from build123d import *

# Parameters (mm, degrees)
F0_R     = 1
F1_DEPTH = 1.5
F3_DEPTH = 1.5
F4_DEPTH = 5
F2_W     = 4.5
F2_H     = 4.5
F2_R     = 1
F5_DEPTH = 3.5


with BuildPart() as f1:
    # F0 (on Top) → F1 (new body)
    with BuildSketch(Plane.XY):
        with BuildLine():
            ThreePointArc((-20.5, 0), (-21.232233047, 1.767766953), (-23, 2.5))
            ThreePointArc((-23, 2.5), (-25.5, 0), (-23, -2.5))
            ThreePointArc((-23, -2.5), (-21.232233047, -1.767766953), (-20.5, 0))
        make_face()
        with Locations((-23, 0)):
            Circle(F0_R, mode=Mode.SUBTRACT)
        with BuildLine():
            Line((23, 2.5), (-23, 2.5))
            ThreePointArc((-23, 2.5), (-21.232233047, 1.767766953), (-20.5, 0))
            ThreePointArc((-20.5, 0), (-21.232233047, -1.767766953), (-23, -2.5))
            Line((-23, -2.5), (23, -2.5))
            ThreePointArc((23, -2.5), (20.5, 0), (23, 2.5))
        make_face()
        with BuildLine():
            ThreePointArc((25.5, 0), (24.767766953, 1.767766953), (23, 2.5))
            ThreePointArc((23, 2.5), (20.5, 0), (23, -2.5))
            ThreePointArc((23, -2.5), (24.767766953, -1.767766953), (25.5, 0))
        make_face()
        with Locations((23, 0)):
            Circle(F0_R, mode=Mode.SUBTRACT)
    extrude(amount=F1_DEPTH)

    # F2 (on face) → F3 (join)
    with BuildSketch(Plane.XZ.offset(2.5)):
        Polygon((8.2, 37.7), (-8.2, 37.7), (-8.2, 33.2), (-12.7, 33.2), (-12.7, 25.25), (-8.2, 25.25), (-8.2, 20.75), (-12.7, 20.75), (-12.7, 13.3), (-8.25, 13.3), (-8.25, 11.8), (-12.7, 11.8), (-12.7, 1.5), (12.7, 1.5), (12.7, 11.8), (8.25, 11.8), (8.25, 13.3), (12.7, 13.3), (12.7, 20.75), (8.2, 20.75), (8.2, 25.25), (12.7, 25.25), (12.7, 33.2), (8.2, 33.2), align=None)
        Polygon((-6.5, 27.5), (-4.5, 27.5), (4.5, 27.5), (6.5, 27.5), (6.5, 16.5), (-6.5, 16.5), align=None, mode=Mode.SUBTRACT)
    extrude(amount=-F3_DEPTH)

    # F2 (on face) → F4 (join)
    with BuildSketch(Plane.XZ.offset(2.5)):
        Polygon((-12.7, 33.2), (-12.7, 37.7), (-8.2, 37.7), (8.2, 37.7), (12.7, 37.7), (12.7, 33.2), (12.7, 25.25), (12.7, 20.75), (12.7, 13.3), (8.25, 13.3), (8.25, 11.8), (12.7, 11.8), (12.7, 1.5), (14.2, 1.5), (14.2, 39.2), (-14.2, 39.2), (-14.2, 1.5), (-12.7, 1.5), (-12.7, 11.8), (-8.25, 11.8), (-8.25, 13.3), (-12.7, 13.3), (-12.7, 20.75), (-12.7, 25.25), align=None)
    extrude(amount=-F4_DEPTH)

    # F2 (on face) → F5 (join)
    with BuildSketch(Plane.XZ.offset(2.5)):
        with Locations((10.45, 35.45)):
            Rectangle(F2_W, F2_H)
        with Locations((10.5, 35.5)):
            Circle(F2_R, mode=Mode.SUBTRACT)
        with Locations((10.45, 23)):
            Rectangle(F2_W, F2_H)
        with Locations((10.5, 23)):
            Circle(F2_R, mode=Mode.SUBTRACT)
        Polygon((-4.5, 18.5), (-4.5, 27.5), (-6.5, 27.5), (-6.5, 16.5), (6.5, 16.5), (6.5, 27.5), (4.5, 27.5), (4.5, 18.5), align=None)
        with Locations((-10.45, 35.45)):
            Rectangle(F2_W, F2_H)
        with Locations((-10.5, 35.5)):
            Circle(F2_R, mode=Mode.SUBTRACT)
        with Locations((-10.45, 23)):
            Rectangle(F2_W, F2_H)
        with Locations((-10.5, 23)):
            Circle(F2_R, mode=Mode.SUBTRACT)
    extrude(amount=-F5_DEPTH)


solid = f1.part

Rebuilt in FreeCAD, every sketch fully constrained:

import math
import FreeCAD as App
import Part
import Sketcher
from FreeCAD import Vector
Q = App.Units.Quantity

doc = App.newDocument("Part")
body = doc.addObject("PartDesign::Body", "Body")

sketch1 = body.newObject("Sketcher::SketchObject", "Sketch")
sketch1.AttachmentSupport = (doc.getObject("XY_Plane"), [""])
sketch1.MapMode = "FlatFace"
sketch1.addGeometry(Part.ArcOfCircle(Part.Circle(Vector(-23, 0, 0), Vector(0, 0, 1), 2.5), math.radians(90), math.radians(270)), False)
sketch1.addGeometry(Part.LineSegment(Vector(-23, -2.5, 0), Vector(23, -2.5, 0)), False)
sketch1.addGeometry(Part.ArcOfCircle(Part.Circle(Vector(23, 0, 0), Vector(0, 0, 1), 2.5), math.radians(-90), math.radians(0)), False)
sketch1.addGeometry(Part.ArcOfCircle(Part.Circle(Vector(23, 0, 0), Vector(0, 0, 1), 2.5), math.radians(0), math.radians(90)), False)
sketch1.addGeometry(Part.LineSegment(Vector(23, 2.5, 0), Vector(-23, 2.5, 0)), False)
sketch1.addGeometry(Part.Circle(Vector(-23, 0, 0), Vector(0, 0, 1), 1), False)
sketch1.addGeometry(Part.Circle(Vector(23, 0, 0), Vector(0, 0, 1), 1), False)
sketch1.addConstraint(Sketcher.Constraint("Tangent", 0, 2, 1, 1))
sketch1.addConstraint(Sketcher.Constraint("Tangent", 1, 2, 2, 1))
sketch1.addConstraint(Sketcher.Constraint("Tangent", 2, 2, 3, 1))
sketch1.addConstraint(Sketcher.Constraint("Tangent", 3, 2, 4, 1))
sketch1.addConstraint(Sketcher.Constraint("Tangent", 4, 2, 0, 1))
sketch1.addConstraint(Sketcher.Constraint("Horizontal", 1))
sketch1.addConstraint(Sketcher.Constraint("Horizontal", 4))
sketch1.addConstraint(Sketcher.Constraint("Coincident", 5, 3, 0, 3))
sketch1.addConstraint(Sketcher.Constraint("Coincident", 6, 3, 2, 3))
sketch1.addConstraint(Sketcher.Constraint("Equal", 0, 2))
sketch1.addConstraint(Sketcher.Constraint("Equal", 5, 6))
sketch1.addConstraint(Sketcher.Constraint("Symmetric", 0, 3, 2, 3, -1, 1))
sketch1.addConstraint(Sketcher.Constraint("PointOnObject", 2, 2, -1))
sketch1.addConstraint(Sketcher.Constraint("Diameter", 5, Q("2 mm")))
sketch1.addConstraint(Sketcher.Constraint("Radius", 0, Q("2.5 mm")))
sketch1.addConstraint(Sketcher.Constraint("DistanceX", 1, 1, 1, 2, Q("46 mm")))
pad1 = body.newObject("PartDesign::Pad", "Pad")
pad1.Profile = sketch1
pad1.Length = 1.5

sketch2 = body.newObject("Sketcher::SketchObject", "Sketch001")
sketch2.AttachmentSupport = (doc.getObject("XZ_Plane"), [""])
sketch2.MapMode = "FlatFace"
sketch2.AttachmentOffset = App.Placement(Vector(0, 0, 2.5), App.Rotation())
sketch2.addGeometry(Part.LineSegment(Vector(8.2, 37.7, 0), Vector(-8.2, 37.7, 0)), False)
sketch2.addGeometry(Part.LineSegment(Vector(-8.2, 37.7, 0), Vector(-8.2, 33.2, 0)), False)
sketch2.addGeometry(Part.LineSegment(Vector(-8.2, 33.2, 0), Vector(-12.7, 33.2, 0)), False)
sketch2.addGeometry(Part.LineSegment(Vector(-12.7, 33.2, 0), Vector(-12.7, 25.2, 0)), False)
sketch2.addGeometry(Part.LineSegment(Vector(-12.7, 25.2, 0), Vector(-8.2, 25.2, 0)), False)
sketch2.addGeometry(Part.LineSegment(Vector(-8.2, 25.2, 0), Vector(-8.2, 20.8, 0)), False)
sketch2.addGeometry(Part.LineSegment(Vector(-8.2, 20.8, 0), Vector(-12.7, 20.8, 0)), False)
sketch2.addGeometry(Part.LineSegment(Vector(-12.7, 20.8, 0), Vector(-12.7, 13.3, 0)), False)
sketch2.addGeometry(Part.LineSegment(Vector(-12.7, 13.3, 0), Vector(-8.2, 13.3, 0)), False)
sketch2.addGeometry(Part.LineSegment(Vector(-8.2, 13.3, 0), Vector(-8.2, 11.8, 0)), False)
sketch2.addGeometry(Part.LineSegment(Vector(-8.2, 11.8, 0), Vector(-12.7, 11.8, 0)), False)
sketch2.addGeometry(Part.LineSegment(Vector(-12.7, 11.8, 0), Vector(-12.7, 1.5, 0)), False)
sketch2.addGeometry(Part.LineSegment(Vector(-12.7, 1.5, 0), Vector(12.7, 1.5, 0)), False)
sketch2.addGeometry(Part.LineSegment(Vector(12.7, 1.5, 0), Vector(12.7, 11.8, 0)), False)
sketch2.addGeometry(Part.LineSegment(Vector(12.7, 11.8, 0), Vector(8.2, 11.8, 0)), False)
sketch2.addGeometry(Part.LineSegment(Vector(8.2, 11.8, 0), Vector(8.2, 13.3, 0)), False)
sketch2.addGeometry(Part.LineSegment(Vector(8.2, 13.3, 0), Vector(12.7, 13.3, 0)), False)
sketch2.addGeometry(Part.LineSegment(Vector(12.7, 13.3, 0), Vector(12.7, 20.8, 0)), False)
sketch2.addGeometry(Part.LineSegment(Vector(12.7, 20.8, 0), Vector(8.2, 20.8, 0)), False)
sketch2.addGeometry(Part.LineSegment(Vector(8.2, 20.8, 0), Vector(8.2, 25.2, 0)), False)
sketch2.addGeometry(Part.LineSegment(Vector(8.2, 25.2, 0), Vector(12.7, 25.2, 0)), False)
sketch2.addGeometry(Part.LineSegment(Vector(12.7, 25.2, 0), Vector(12.7, 33.2, 0)), False)
sketch2.addGeometry(Part.LineSegment(Vector(12.7, 33.2, 0), Vector(8.2, 33.2, 0)), False)
sketch2.addGeometry(Part.LineSegment(Vector(8.2, 33.2, 0), Vector(8.2, 37.7, 0)), False)
sketch2.addGeometry(Part.LineSegment(Vector(-6.5, 16.5, 0), Vector(-6.5, 27.5, 0)), False)
sketch2.addGeometry(Part.LineSegment(Vector(-6.5, 27.5, 0), Vector(6.5, 27.5, 0)), False)
sketch2.addGeometry(Part.LineSegment(Vector(6.5, 27.5, 0), Vector(6.5, 16.5, 0)), False)
sketch2.addGeometry(Part.LineSegment(Vector(6.5, 16.5, 0), Vector(-6.5, 16.5, 0)), False)
sketch2.addConstraint(Sketcher.Constraint("Coincident", 0, 2, 1, 1))
sketch2.addConstraint(Sketcher.Constraint("Coincident", 1, 2, 2, 1))
sketch2.addConstraint(Sketcher.Constraint("Coincident", 2, 2, 3, 1))
sketch2.addConstraint(Sketcher.Constraint("Coincident", 3, 2, 4, 1))
sketch2.addConstraint(Sketcher.Constraint("Coincident", 4, 2, 5, 1))
sketch2.addConstraint(Sketcher.Constraint("Coincident", 5, 2, 6, 1))
sketch2.addConstraint(Sketcher.Constraint("Coincident", 6, 2, 7, 1))
sketch2.addConstraint(Sketcher.Constraint("Coincident", 7, 2, 8, 1))
sketch2.addConstraint(Sketcher.Constraint("Coincident", 8, 2, 9, 1))
sketch2.addConstraint(Sketcher.Constraint("Coincident", 9, 2, 10, 1))
sketch2.addConstraint(Sketcher.Constraint("Coincident", 10, 2, 11, 1))
sketch2.addConstraint(Sketcher.Constraint("Coincident", 11, 2, 12, 1))
sketch2.addConstraint(Sketcher.Constraint("Coincident", 12, 2, 13, 1))
sketch2.addConstraint(Sketcher.Constraint("Coincident", 13, 2, 14, 1))
sketch2.addConstraint(Sketcher.Constraint("Coincident", 14, 2, 15, 1))
sketch2.addConstraint(Sketcher.Constraint("Coincident", 15, 2, 16, 1))
sketch2.addConstraint(Sketcher.Constraint("Coincident", 16, 2, 17, 1))
sketch2.addConstraint(Sketcher.Constraint("Coincident", 17, 2, 18, 1))
sketch2.addConstraint(Sketcher.Constraint("Coincident", 18, 2, 19, 1))
sketch2.addConstraint(Sketcher.Constraint("Coincident", 19, 2, 20, 1))
sketch2.addConstraint(Sketcher.Constraint("Coincident", 20, 2, 21, 1))
sketch2.addConstraint(Sketcher.Constraint("Coincident", 21, 2, 22, 1))
sketch2.addConstraint(Sketcher.Constraint("Coincident", 22, 2, 23, 1))
sketch2.addConstraint(Sketcher.Constraint("Coincident", 23, 2, 0, 1))
sketch2.addConstraint(Sketcher.Constraint("Coincident", 24, 2, 25, 1))
sketch2.addConstraint(Sketcher.Constraint("Coincident", 25, 2, 26, 1))
sketch2.addConstraint(Sketcher.Constraint("Coincident", 26, 2, 27, 1))
sketch2.addConstraint(Sketcher.Constraint("Coincident", 27, 2, 24, 1))
sketch2.addConstraint(Sketcher.Constraint("Horizontal", 0))
sketch2.addConstraint(Sketcher.Constraint("Vertical", 1))
sketch2.addConstraint(Sketcher.Constraint("Horizontal", 2))
sketch2.addConstraint(Sketcher.Constraint("Vertical", 3))
sketch2.addConstraint(Sketcher.Constraint("Horizontal", 4))
sketch2.addConstraint(Sketcher.Constraint("Vertical", 5))
sketch2.addConstraint(Sketcher.Constraint("Horizontal", 6))
sketch2.addConstraint(Sketcher.Constraint("Vertical", 7))
sketch2.addConstraint(Sketcher.Constraint("Horizontal", 8))
sketch2.addConstraint(Sketcher.Constraint("Vertical", 9))
sketch2.addConstraint(Sketcher.Constraint("Horizontal", 10))
sketch2.addConstraint(Sketcher.Constraint("Vertical", 11))
sketch2.addConstraint(Sketcher.Constraint("Horizontal", 12))
sketch2.addConstraint(Sketcher.Constraint("Vertical", 13))
sketch2.addConstraint(Sketcher.Constraint("Horizontal", 14))
sketch2.addConstraint(Sketcher.Constraint("Vertical", 15))
sketch2.addConstraint(Sketcher.Constraint("Horizontal", 16))
sketch2.addConstraint(Sketcher.Constraint("Vertical", 17))
sketch2.addConstraint(Sketcher.Constraint("Horizontal", 18))
sketch2.addConstraint(Sketcher.Constraint("Vertical", 19))
sketch2.addConstraint(Sketcher.Constraint("Horizontal", 20))
sketch2.addConstraint(Sketcher.Constraint("Vertical", 21))
sketch2.addConstraint(Sketcher.Constraint("Horizontal", 22))
sketch2.addConstraint(Sketcher.Constraint("Vertical", 23))
sketch2.addConstraint(Sketcher.Constraint("Vertical", 24))
sketch2.addConstraint(Sketcher.Constraint("Horizontal", 25))
sketch2.addConstraint(Sketcher.Constraint("Vertical", 26))
sketch2.addConstraint(Sketcher.Constraint("Horizontal", 27))
sketch2.addConstraint(Sketcher.Constraint("Symmetric", 10, 2, 13, 2, -2))
sketch2.addConstraint(Sketcher.Constraint("Symmetric", 8, 2, 15, 2, -2))
sketch2.addConstraint(Sketcher.Constraint("Symmetric", 6, 2, 17, 2, -2))
sketch2.addConstraint(Sketcher.Constraint("Symmetric", 4, 2, 19, 2, -2))
sketch2.addConstraint(Sketcher.Constraint("Symmetric", 2, 2, 21, 2, -2))
sketch2.addConstraint(Sketcher.Constraint("Vertical", 1, 2, 4, 2))
sketch2.addConstraint(Sketcher.Constraint("Vertical", 3, 2, 6, 2))
sketch2.addConstraint(Sketcher.Constraint("Vertical", 7, 2, 10, 2))
sketch2.addConstraint(Sketcher.Constraint("Vertical", 19, 2, 22, 2))
sketch2.addConstraint(Sketcher.Constraint("Equal", 22, 1))
sketch2.addConstraint(Sketcher.Constraint("Equal", 1, 5))
sketch2.addConstraint(Sketcher.Constraint("DistanceX", 25, 1, 25, 2, Q("13 mm")))
sketch2.addConstraint(Sketcher.Constraint("DistanceY", 24, 1, 24, 2, Q("11 mm")))
sketch2.addConstraint(Sketcher.Constraint("DistanceX", 0, 2, 0, 1, Q("16.4 mm")))
sketch2.addConstraint(Sketcher.Constraint("DistanceX", 2, 2, 2, 1, Q("4.5 mm")))
sketch2.addConstraint(Sketcher.Constraint("DistanceY", 9, 2, 9, 1, Q("1.5 mm")))
sketch2.addConstraint(Sketcher.Constraint("DistanceY", 11, 2, 11, 1, Q("10.3 mm")))
sketch2.addConstraint(Sketcher.Constraint("DistanceX", 8, 1, 8, 2, Q("4.45 mm")))
sketch2.addConstraint(Sketcher.Constraint("DistanceY", 3, 2, 3, 1, Q("7.95 mm")))
sketch2.addConstraint(Sketcher.Constraint("DistanceY", 7, 2, 7, 1, Q("7.45 mm")))
sketch2.addConstraint(Sketcher.Constraint("DistanceY", -1, 1, 0, 2, Q("37.7 mm")))
sketch2.addConstraint(Sketcher.Constraint("DistanceX", 24, 2, -1, 1, Q("6.5 mm")))
sketch2.addConstraint(Sketcher.Constraint("DistanceY", -1, 1, 24, 2, Q("27.5 mm")))
pad2 = body.newObject("PartDesign::Pad", "Pad001")
pad2.Profile = sketch2
pad2.Length = 1.5
pad2.Reversed = True

sketch3 = body.newObject("Sketcher::SketchObject", "Sketch002")
sketch3.AttachmentSupport = (doc.getObject("XZ_Plane"), [""])
sketch3.MapMode = "FlatFace"
sketch3.AttachmentOffset = App.Placement(Vector(0, 0, 2.5), App.Rotation())
sketch3.addGeometry(Part.LineSegment(Vector(-12.7, 37.7, 0), Vector(12.7, 37.7, 0)), False)
sketch3.addGeometry(Part.LineSegment(Vector(12.7, 37.7, 0), Vector(12.7, 13.3, 0)), False)
sketch3.addGeometry(Part.LineSegment(Vector(12.7, 13.3, 0), Vector(8.2, 13.3, 0)), False)
sketch3.addGeometry(Part.LineSegment(Vector(8.2, 13.3, 0), Vector(8.2, 11.8, 0)), False)
sketch3.addGeometry(Part.LineSegment(Vector(8.2, 11.8, 0), Vector(12.7, 11.8, 0)), False)
sketch3.addGeometry(Part.LineSegment(Vector(12.7, 11.8, 0), Vector(12.7, 1.5, 0)), False)
sketch3.addGeometry(Part.LineSegment(Vector(12.7, 1.5, 0), Vector(14.2, 1.5, 0)), False)
sketch3.addGeometry(Part.LineSegment(Vector(14.2, 1.5, 0), Vector(14.2, 39.2, 0)), False)
sketch3.addGeometry(Part.LineSegment(Vector(14.2, 39.2, 0), Vector(-14.2, 39.2, 0)), False)
sketch3.addGeometry(Part.LineSegment(Vector(-14.2, 39.2, 0), Vector(-14.2, 1.5, 0)), False)
sketch3.addGeometry(Part.LineSegment(Vector(-14.2, 1.5, 0), Vector(-12.7, 1.5, 0)), False)
sketch3.addGeometry(Part.LineSegment(Vector(-12.7, 1.5, 0), Vector(-12.7, 11.8, 0)), False)
sketch3.addGeometry(Part.LineSegment(Vector(-12.7, 11.8, 0), Vector(-8.2, 11.8, 0)), False)
sketch3.addGeometry(Part.LineSegment(Vector(-8.2, 11.8, 0), Vector(-8.2, 13.3, 0)), False)
sketch3.addGeometry(Part.LineSegment(Vector(-8.2, 13.3, 0), Vector(-12.7, 13.3, 0)), False)
sketch3.addGeometry(Part.LineSegment(Vector(-12.7, 13.3, 0), Vector(-12.7, 37.7, 0)), False)
sketch3.addConstraint(Sketcher.Constraint("Coincident", 0, 2, 1, 1))
sketch3.addConstraint(Sketcher.Constraint("Coincident", 1, 2, 2, 1))
sketch3.addConstraint(Sketcher.Constraint("Coincident", 2, 2, 3, 1))
sketch3.addConstraint(Sketcher.Constraint("Coincident", 3, 2, 4, 1))
sketch3.addConstraint(Sketcher.Constraint("Coincident", 4, 2, 5, 1))
sketch3.addConstraint(Sketcher.Constraint("Coincident", 5, 2, 6, 1))
sketch3.addConstraint(Sketcher.Constraint("Coincident", 6, 2, 7, 1))
sketch3.addConstraint(Sketcher.Constraint("Coincident", 7, 2, 8, 1))
sketch3.addConstraint(Sketcher.Constraint("Coincident", 8, 2, 9, 1))
sketch3.addConstraint(Sketcher.Constraint("Coincident", 9, 2, 10, 1))
sketch3.addConstraint(Sketcher.Constraint("Coincident", 10, 2, 11, 1))
sketch3.addConstraint(Sketcher.Constraint("Coincident", 11, 2, 12, 1))
sketch3.addConstraint(Sketcher.Constraint("Coincident", 12, 2, 13, 1))
sketch3.addConstraint(Sketcher.Constraint("Coincident", 13, 2, 14, 1))
sketch3.addConstraint(Sketcher.Constraint("Coincident", 14, 2, 15, 1))
sketch3.addConstraint(Sketcher.Constraint("Coincident", 15, 2, 0, 1))
sketch3.addConstraint(Sketcher.Constraint("Horizontal", 0))
sketch3.addConstraint(Sketcher.Constraint("Vertical", 1))
sketch3.addConstraint(Sketcher.Constraint("Horizontal", 2))
sketch3.addConstraint(Sketcher.Constraint("Vertical", 3))
sketch3.addConstraint(Sketcher.Constraint("Horizontal", 4))
sketch3.addConstraint(Sketcher.Constraint("Vertical", 5))
sketch3.addConstraint(Sketcher.Constraint("Horizontal", 6))
sketch3.addConstraint(Sketcher.Constraint("Vertical", 7))
sketch3.addConstraint(Sketcher.Constraint("Horizontal", 8))
sketch3.addConstraint(Sketcher.Constraint("Vertical", 9))
sketch3.addConstraint(Sketcher.Constraint("Horizontal", 10))
sketch3.addConstraint(Sketcher.Constraint("Vertical", 11))
sketch3.addConstraint(Sketcher.Constraint("Horizontal", 12))
sketch3.addConstraint(Sketcher.Constraint("Vertical", 13))
sketch3.addConstraint(Sketcher.Constraint("Horizontal", 14))
sketch3.addConstraint(Sketcher.Constraint("Vertical", 15))
sketch3.addConstraint(Sketcher.Constraint("Symmetric", 6, 2, 9, 2, -2))
sketch3.addConstraint(Sketcher.Constraint("Symmetric", 4, 2, 11, 2, -2))
sketch3.addConstraint(Sketcher.Constraint("Symmetric", 2, 2, 13, 2, -2))
sketch3.addConstraint(Sketcher.Constraint("Vertical", 1, 2, 4, 2))
sketch3.addConstraint(Sketcher.Constraint("Vertical", 11, 2, 14, 2))
sketch3.addConstraint(Sketcher.Constraint("Equal", 10, 3))
sketch3.addConstraint(Sketcher.Constraint("DistanceX", 0, 1, 0, 2, Q("25.4 mm")))
sketch3.addConstraint(Sketcher.Constraint("DistanceX", 6, 1, 6, 2, Q("1.5 mm")))
sketch3.addConstraint(Sketcher.Constraint("DistanceY", 1, 2, 1, 1, Q("24.4 mm")))
sketch3.addConstraint(Sketcher.Constraint("DistanceY", 5, 2, 5, 1, Q("10.3 mm")))
sketch3.addConstraint(Sketcher.Constraint("DistanceY", 7, 1, 7, 2, Q("37.7 mm")))
sketch3.addConstraint(Sketcher.Constraint("DistanceX", 2, 2, 2, 1, Q("4.45 mm")))
sketch3.addConstraint(Sketcher.Constraint("DistanceY", -1, 1, 0, 2, Q("37.7 mm")))
pad3 = body.newObject("PartDesign::Pad", "Pad002")
pad3.Profile = sketch3
pad3.Length = 5
pad3.Reversed = True

sketch4 = body.newObject("Sketcher::SketchObject", "Sketch003")
sketch4.AttachmentSupport = (doc.getObject("XZ_Plane"), [""])
sketch4.MapMode = "FlatFace"
sketch4.AttachmentOffset = App.Placement(Vector(0, 0, 2.5), App.Rotation())
sketch4.addGeometry(Part.LineSegment(Vector(8.2, 37.7, 0), Vector(8.2, 33.2, 0)), False)
sketch4.addGeometry(Part.LineSegment(Vector(8.2, 33.2, 0), Vector(12.7, 33.2, 0)), False)
sketch4.addGeometry(Part.LineSegment(Vector(12.7, 33.2, 0), Vector(12.7, 37.7, 0)), False)
sketch4.addGeometry(Part.LineSegment(Vector(12.7, 37.7, 0), Vector(8.2, 37.7, 0)), False)
sketch4.addGeometry(Part.Circle(Vector(10.5, 35.5, 0), Vector(0, 0, 1), 1), False)
sketch4.addGeometry(Part.LineSegment(Vector(8.2, 25.2, 0), Vector(8.2, 20.8, 0)), False)
sketch4.addGeometry(Part.LineSegment(Vector(8.2, 20.8, 0), Vector(12.7, 20.8, 0)), False)
sketch4.addGeometry(Part.LineSegment(Vector(12.7, 20.8, 0), Vector(12.7, 25.2, 0)), False)
sketch4.addGeometry(Part.LineSegment(Vector(12.7, 25.2, 0), Vector(8.2, 25.2, 0)), False)
sketch4.addGeometry(Part.Circle(Vector(10.5, 23, 0), Vector(0, 0, 1), 1), False)
sketch4.addGeometry(Part.LineSegment(Vector(-4.5, 18.5, 0), Vector(-4.5, 27.5, 0)), False)
sketch4.addGeometry(Part.LineSegment(Vector(-4.5, 27.5, 0), Vector(-6.5, 27.5, 0)), False)
sketch4.addGeometry(Part.LineSegment(Vector(-6.5, 27.5, 0), Vector(-6.5, 16.5, 0)), False)
sketch4.addGeometry(Part.LineSegment(Vector(-6.5, 16.5, 0), Vector(6.5, 16.5, 0)), False)
sketch4.addGeometry(Part.LineSegment(Vector(6.5, 16.5, 0), Vector(6.5, 27.5, 0)), False)
sketch4.addGeometry(Part.LineSegment(Vector(6.5, 27.5, 0), Vector(4.5, 27.5, 0)), False)
sketch4.addGeometry(Part.LineSegment(Vector(4.5, 27.5, 0), Vector(4.5, 18.5, 0)), False)
sketch4.addGeometry(Part.LineSegment(Vector(4.5, 18.5, 0), Vector(-4.5, 18.5, 0)), False)
sketch4.addGeometry(Part.LineSegment(Vector(-12.7, 37.7, 0), Vector(-12.7, 33.2, 0)), False)
sketch4.addGeometry(Part.LineSegment(Vector(-12.7, 33.2, 0), Vector(-8.2, 33.2, 0)), False)
sketch4.addGeometry(Part.LineSegment(Vector(-8.2, 33.2, 0), Vector(-8.2, 37.7, 0)), False)
sketch4.addGeometry(Part.LineSegment(Vector(-8.2, 37.7, 0), Vector(-12.7, 37.7, 0)), False)
sketch4.addGeometry(Part.Circle(Vector(-10.5, 35.5, 0), Vector(0, 0, 1), 1), False)
sketch4.addGeometry(Part.LineSegment(Vector(-12.7, 25.2, 0), Vector(-12.7, 20.8, 0)), False)
sketch4.addGeometry(Part.LineSegment(Vector(-12.7, 20.8, 0), Vector(-8.2, 20.8, 0)), False)
sketch4.addGeometry(Part.LineSegment(Vector(-8.2, 20.8, 0), Vector(-8.2, 25.2, 0)), False)
sketch4.addGeometry(Part.LineSegment(Vector(-8.2, 25.2, 0), Vector(-12.7, 25.2, 0)), False)
sketch4.addGeometry(Part.Circle(Vector(-10.5, 23, 0), Vector(0, 0, 1), 1), False)
sketch4.addConstraint(Sketcher.Constraint("Coincident", 0, 2, 1, 1))
sketch4.addConstraint(Sketcher.Constraint("Coincident", 1, 2, 2, 1))
sketch4.addConstraint(Sketcher.Constraint("Coincident", 2, 2, 3, 1))
sketch4.addConstraint(Sketcher.Constraint("Coincident", 3, 2, 0, 1))
sketch4.addConstraint(Sketcher.Constraint("Coincident", 5, 2, 6, 1))
sketch4.addConstraint(Sketcher.Constraint("Coincident", 6, 2, 7, 1))
sketch4.addConstraint(Sketcher.Constraint("Coincident", 7, 2, 8, 1))
sketch4.addConstraint(Sketcher.Constraint("Coincident", 8, 2, 5, 1))
sketch4.addConstraint(Sketcher.Constraint("Coincident", 10, 2, 11, 1))
sketch4.addConstraint(Sketcher.Constraint("Coincident", 11, 2, 12, 1))
sketch4.addConstraint(Sketcher.Constraint("Coincident", 12, 2, 13, 1))
sketch4.addConstraint(Sketcher.Constraint("Coincident", 13, 2, 14, 1))
sketch4.addConstraint(Sketcher.Constraint("Coincident", 14, 2, 15, 1))
sketch4.addConstraint(Sketcher.Constraint("Coincident", 15, 2, 16, 1))
sketch4.addConstraint(Sketcher.Constraint("Coincident", 16, 2, 17, 1))
sketch4.addConstraint(Sketcher.Constraint("Coincident", 17, 2, 10, 1))
sketch4.addConstraint(Sketcher.Constraint("Coincident", 18, 2, 19, 1))
sketch4.addConstraint(Sketcher.Constraint("Coincident", 19, 2, 20, 1))
sketch4.addConstraint(Sketcher.Constraint("Coincident", 20, 2, 21, 1))
sketch4.addConstraint(Sketcher.Constraint("Coincident", 21, 2, 18, 1))
sketch4.addConstraint(Sketcher.Constraint("Coincident", 23, 2, 24, 1))
sketch4.addConstraint(Sketcher.Constraint("Coincident", 24, 2, 25, 1))
sketch4.addConstraint(Sketcher.Constraint("Coincident", 25, 2, 26, 1))
sketch4.addConstraint(Sketcher.Constraint("Coincident", 26, 2, 23, 1))
sketch4.addConstraint(Sketcher.Constraint("Vertical", 0))
sketch4.addConstraint(Sketcher.Constraint("Horizontal", 1))
sketch4.addConstraint(Sketcher.Constraint("Vertical", 2))
sketch4.addConstraint(Sketcher.Constraint("Horizontal", 3))
sketch4.addConstraint(Sketcher.Constraint("Vertical", 5))
sketch4.addConstraint(Sketcher.Constraint("Horizontal", 6))
sketch4.addConstraint(Sketcher.Constraint("Vertical", 7))
sketch4.addConstraint(Sketcher.Constraint("Horizontal", 8))
sketch4.addConstraint(Sketcher.Constraint("Vertical", 10))
sketch4.addConstraint(Sketcher.Constraint("Horizontal", 11))
sketch4.addConstraint(Sketcher.Constraint("Vertical", 12))
sketch4.addConstraint(Sketcher.Constraint("Horizontal", 13))
sketch4.addConstraint(Sketcher.Constraint("Vertical", 14))
sketch4.addConstraint(Sketcher.Constraint("Horizontal", 15))
sketch4.addConstraint(Sketcher.Constraint("Vertical", 16))
sketch4.addConstraint(Sketcher.Constraint("Horizontal", 17))
sketch4.addConstraint(Sketcher.Constraint("Vertical", 18))
sketch4.addConstraint(Sketcher.Constraint("Horizontal", 19))
sketch4.addConstraint(Sketcher.Constraint("Vertical", 20))
sketch4.addConstraint(Sketcher.Constraint("Horizontal", 21))
sketch4.addConstraint(Sketcher.Constraint("Vertical", 23))
sketch4.addConstraint(Sketcher.Constraint("Horizontal", 24))
sketch4.addConstraint(Sketcher.Constraint("Vertical", 25))
sketch4.addConstraint(Sketcher.Constraint("Horizontal", 26))
sketch4.addConstraint(Sketcher.Constraint("Equal", 4, 9))
sketch4.addConstraint(Sketcher.Constraint("Equal", 9, 22))
sketch4.addConstraint(Sketcher.Constraint("Equal", 22, 27))
sketch4.addConstraint(Sketcher.Constraint("Symmetric", 4, 3, 22, 3, -2))
sketch4.addConstraint(Sketcher.Constraint("Symmetric", 9, 3, 27, 3, -2))
sketch4.addConstraint(Sketcher.Constraint("Symmetric", 11, 2, 14, 2, -2))
sketch4.addConstraint(Sketcher.Constraint("Symmetric", 1, 2, 18, 2, -2))
sketch4.addConstraint(Sketcher.Constraint("Symmetric", 3, 2, 20, 2, -2))
sketch4.addConstraint(Sketcher.Constraint("Symmetric", 6, 2, 23, 2, -2))
sketch4.addConstraint(Sketcher.Constraint("Symmetric", 8, 2, 25, 2, -2))
sketch4.addConstraint(Sketcher.Constraint("Vertical", 4, 3, 9, 3))
sketch4.addConstraint(Sketcher.Constraint("Vertical", 3, 2, 5, 2))
sketch4.addConstraint(Sketcher.Constraint("Vertical", 2, 2, 6, 2))
sketch4.addConstraint(Sketcher.Constraint("Equal", 11, 15))
sketch4.addConstraint(Sketcher.Constraint("Equal", 26, 0))
sketch4.addConstraint(Sketcher.Constraint("Equal", 2, 5))
sketch4.addConstraint(Sketcher.Constraint("Equal", 17, 10))
sketch4.addConstraint(Sketcher.Constraint("Diameter", 4, Q("2 mm")))
sketch4.addConstraint(Sketcher.Constraint("DistanceX", 11, 2, 11, 1, Q("2 mm")))
sketch4.addConstraint(Sketcher.Constraint("DistanceX", 13, 1, 13, 2, Q("13 mm")))
sketch4.addConstraint(Sketcher.Constraint("DistanceY", 12, 2, 12, 1, Q("11 mm")))
sketch4.addConstraint(Sketcher.Constraint("DistanceX", 1, 1, 1, 2, Q("4.5 mm")))
sketch4.addConstraint(Sketcher.Constraint("DistanceY", -1, 1, 9, 3, Q("23 mm")))
sketch4.addConstraint(Sketcher.Constraint("DistanceX", 22, 3, 4, 3, Q("21 mm")))
sketch4.addConstraint(Sketcher.Constraint("DistanceY", 10, 2, 22, 3, Q("8 mm")))
sketch4.addConstraint(Sketcher.Constraint("DistanceY", -1, 1, 4, 3, Q("35.5 mm")))
sketch4.addConstraint(Sketcher.Constraint("DistanceX", -1, 1, 0, 2, Q("8.2 mm")))
sketch4.addConstraint(Sketcher.Constraint("DistanceY", -1, 1, 0, 2, Q("33.2 mm")))
sketch4.addConstraint(Sketcher.Constraint("DistanceY", -1, 1, 5, 2, Q("20.75 mm")))
pad4 = body.newObject("PartDesign::Pad", "Pad003")
pad4.Profile = sketch4
pad4.Length = 3.5
pad4.Reversed = True

doc.recompute()
